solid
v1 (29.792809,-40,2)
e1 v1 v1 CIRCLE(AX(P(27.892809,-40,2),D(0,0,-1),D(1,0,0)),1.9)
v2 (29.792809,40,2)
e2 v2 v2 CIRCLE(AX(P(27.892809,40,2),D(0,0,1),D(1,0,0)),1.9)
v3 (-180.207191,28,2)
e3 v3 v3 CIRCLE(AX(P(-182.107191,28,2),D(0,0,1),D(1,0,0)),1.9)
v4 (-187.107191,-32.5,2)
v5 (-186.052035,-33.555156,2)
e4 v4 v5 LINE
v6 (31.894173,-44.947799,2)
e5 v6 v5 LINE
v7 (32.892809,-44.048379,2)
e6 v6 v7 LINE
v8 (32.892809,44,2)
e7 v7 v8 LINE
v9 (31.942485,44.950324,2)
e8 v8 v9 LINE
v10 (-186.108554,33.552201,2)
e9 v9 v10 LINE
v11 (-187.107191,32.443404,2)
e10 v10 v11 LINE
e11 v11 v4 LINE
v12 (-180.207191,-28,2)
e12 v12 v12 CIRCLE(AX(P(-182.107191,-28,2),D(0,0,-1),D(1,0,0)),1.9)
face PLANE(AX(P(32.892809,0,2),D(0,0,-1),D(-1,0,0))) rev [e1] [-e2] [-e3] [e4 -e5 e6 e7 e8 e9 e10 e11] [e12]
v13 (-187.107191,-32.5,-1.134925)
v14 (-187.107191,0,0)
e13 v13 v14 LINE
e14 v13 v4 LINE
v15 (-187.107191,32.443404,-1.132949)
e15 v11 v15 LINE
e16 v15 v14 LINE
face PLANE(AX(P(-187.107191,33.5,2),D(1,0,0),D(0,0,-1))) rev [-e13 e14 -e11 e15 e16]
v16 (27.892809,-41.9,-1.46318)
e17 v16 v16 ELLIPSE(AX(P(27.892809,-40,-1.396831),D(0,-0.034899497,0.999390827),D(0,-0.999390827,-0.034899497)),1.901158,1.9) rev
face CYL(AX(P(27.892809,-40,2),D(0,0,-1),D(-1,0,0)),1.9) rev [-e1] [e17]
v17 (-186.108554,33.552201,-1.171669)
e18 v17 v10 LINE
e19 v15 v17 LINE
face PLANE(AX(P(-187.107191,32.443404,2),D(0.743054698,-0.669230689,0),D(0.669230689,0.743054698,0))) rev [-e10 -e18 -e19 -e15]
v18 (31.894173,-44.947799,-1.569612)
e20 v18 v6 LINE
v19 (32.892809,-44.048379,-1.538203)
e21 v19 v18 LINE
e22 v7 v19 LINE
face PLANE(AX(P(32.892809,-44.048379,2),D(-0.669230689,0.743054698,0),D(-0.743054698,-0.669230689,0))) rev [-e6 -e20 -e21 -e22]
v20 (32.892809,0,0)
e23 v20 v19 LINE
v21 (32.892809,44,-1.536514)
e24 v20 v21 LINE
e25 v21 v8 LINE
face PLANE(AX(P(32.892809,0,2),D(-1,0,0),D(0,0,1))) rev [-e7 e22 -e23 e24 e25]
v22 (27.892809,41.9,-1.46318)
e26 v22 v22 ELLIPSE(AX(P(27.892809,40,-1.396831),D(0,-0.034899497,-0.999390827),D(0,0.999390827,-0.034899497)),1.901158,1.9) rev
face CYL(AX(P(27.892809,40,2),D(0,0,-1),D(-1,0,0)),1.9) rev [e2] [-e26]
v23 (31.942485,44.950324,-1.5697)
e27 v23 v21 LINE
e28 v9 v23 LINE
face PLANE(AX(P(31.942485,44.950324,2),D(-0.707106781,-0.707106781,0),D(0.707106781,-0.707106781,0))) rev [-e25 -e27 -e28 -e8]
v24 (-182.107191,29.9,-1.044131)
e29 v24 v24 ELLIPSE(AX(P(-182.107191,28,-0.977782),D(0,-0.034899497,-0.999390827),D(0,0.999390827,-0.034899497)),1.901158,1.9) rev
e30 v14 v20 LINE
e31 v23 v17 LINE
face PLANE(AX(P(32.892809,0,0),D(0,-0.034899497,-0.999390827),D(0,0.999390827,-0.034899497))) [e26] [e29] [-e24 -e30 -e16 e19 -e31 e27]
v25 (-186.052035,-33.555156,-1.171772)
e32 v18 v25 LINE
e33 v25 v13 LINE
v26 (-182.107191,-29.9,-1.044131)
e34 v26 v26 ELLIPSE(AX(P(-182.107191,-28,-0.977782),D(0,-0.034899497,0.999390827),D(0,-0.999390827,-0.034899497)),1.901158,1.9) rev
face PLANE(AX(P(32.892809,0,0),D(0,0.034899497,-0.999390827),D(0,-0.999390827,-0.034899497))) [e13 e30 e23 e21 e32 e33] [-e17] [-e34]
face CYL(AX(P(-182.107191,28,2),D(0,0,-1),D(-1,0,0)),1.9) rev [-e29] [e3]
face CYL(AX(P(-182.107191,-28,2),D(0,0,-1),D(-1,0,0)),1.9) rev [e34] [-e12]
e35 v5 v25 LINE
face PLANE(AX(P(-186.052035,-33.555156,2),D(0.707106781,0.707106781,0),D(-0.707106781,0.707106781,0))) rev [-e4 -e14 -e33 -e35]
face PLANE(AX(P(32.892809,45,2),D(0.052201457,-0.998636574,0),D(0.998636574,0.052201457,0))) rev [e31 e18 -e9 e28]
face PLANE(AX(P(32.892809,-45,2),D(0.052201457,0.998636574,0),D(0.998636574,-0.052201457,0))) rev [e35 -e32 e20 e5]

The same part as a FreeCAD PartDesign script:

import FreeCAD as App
import Part
import Sketcher

V = App.Vector


def edges_at(feature, points):
    """Names of the edges that pass closest to the given points."""
    edges = feature.Shape.Edges
    near = lambda p: min(range(len(edges)), key=lambda i: edges[i].distToShape(Part.Vertex(*p))[0])
    return sorted({f"Edge{near(p) + 1}" for p in points})


def faces_at(feature, points):
    """Names of the faces that lie closest to the given points."""
    faces = feature.Shape.Faces
    near = lambda p: min(range(len(faces)), key=lambda i: faces[i].distToShape(Part.Vertex(*p))[0])
    return sorted({f"Face{near(p) + 1}" for p in points})


def add_polygon(sketch, points):
    """Adds a closed chain of lines whose ends are joined by coincident constraints."""
    first, n = sketch.GeometryCount, len(points)
    for a, b in zip(points, points[1:] + points[:1]):
        sketch.addGeometry(Part.LineSegment(App.Vector(*a, 0), App.Vector(*b, 0)), False)
    for i in range(n):
        sketch.addConstraint(Sketcher.Constraint("Coincident", first + i, 2, first + (i + 1) % n, 1))

doc = App.newDocument("Part")
body = doc.addObject("PartDesign::Body", "Body")

# Sketch on XY plane
sketch1 = body.newObject("Sketcher::SketchObject", "Sketch")
sketch1.AttachmentSupport = (doc.getObject("XY_Plane"), [""])
sketch1.MapMode = "FlatFace"
add_polygon(sketch1, [(32.9, 0), (32.9, 45), (-187.1, 33.5), (-187.1, 0)])  # lines 0-3
sketch1.addGeometry(Part.Circle(V(-182.1, 28, 0), V(0, 0, 1), 1.9), False)  # 4
sketch1.addGeometry(Part.Circle(V(27.9, 40, 0), V(0, 0, 1), 1.9), False)  # 5
sketch1.addConstraint([
    Sketcher.Constraint("Vertical", 0),
    Sketcher.Constraint("Vertical", 2),
    Sketcher.Constraint("Horizontal", 3),
    Sketcher.Constraint("Equal", 4, 5),
    Sketcher.Constraint("PointOnObject", 2, 2, -1),
    Sketcher.Constraint("Diameter", 4, 3.8),
    Sketcher.Constraint("DistanceX", 3, 1, 3, 2, 220.0),
    Sketcher.Constraint("DistanceY", 0, 1, 0, 2, 45.0),
    Sketcher.Constraint("DistanceY", 2, 2, 2, 1, 33.5),
    Sketcher.Constraint("DistanceY", -1, 1, 4, 3, 28.0),
    Sketcher.Constraint("DistanceY", -1, 1, 5, 3, 40.0),
    Sketcher.Constraint("DistanceX", 4, 3, 5, 3, 210.0),
    Sketcher.Constraint("DistanceX", 5, 3, 0, 2, 5.0),
    Sketcher.Constraint("DistanceX", 4, 3, -1, 1, 182.107191),
])
pad1 = body.newObject("PartDesign::Pad", "Pad")
pad1.Profile = sketch1
pad1.Length = 2
doc.recompute()

draft = body.newObject("PartDesign::Draft", "Draft")
draft.Base = (pad1, faces_at(pad1, [(-77.107, 22.5, 0)]))
draft.NeutralPlane = (doc.getObject("XZ_Plane"), [""])
draft.Angle = 2
draft.Reversed = False
body2 = doc.addObject("PartDesign::Body", "Body001")
doc.recompute()

body2.BaseFeature = body
doc.recompute()

mirroring = doc.addObject("Part::Mirroring", "Mirroring")
mirroring.Source = body
mirroring.Base = V(32.892809, 0, 2)
mirroring.Normal = V(0, 1, 0)
body3 = doc.addObject("PartDesign::Body", "Body002")
body3.BaseFeature = mirroring
boolean = body2.newObject("PartDesign::Boolean", "Boolean")
boolean.Type = "Fuse"
boolean.addObjects([body3])
doc.recompute()

chamfer = body2.newObject("PartDesign::Chamfer", "Chamfer")
chamfer.Base = (boolean, edges_at(boolean, [(-187.107, 33.5, 0.415)]))
chamfer.ChamferType = "Two distances"
chamfer.Size = 1
chamfer.Size2 = 1.056596
doc.recompute()

chamfer2 = body2.newObject("PartDesign::Chamfer", "Chamfer001")
chamfer2.Base = (chamfer, edges_at(chamfer, [(-187.107, -33.5, 0.415)]))
chamfer2.ChamferType = "Two distances"
chamfer2.Size = 1
chamfer2.Size2 = 1.056596
doc.recompute()

chamfer3 = body2.newObject("PartDesign::Chamfer", "Chamfer002")
chamfer3.Base = (chamfer2, edges_at(chamfer2, [(32.893, -45, 0.214)]))
chamfer3.ChamferType = "Two distances"
chamfer3.Size = 1
chamfer3.Size2 = 0.951621
doc.recompute()

chamfer4 = body2.newObject("PartDesign::Chamfer", "Chamfer003")
chamfer4.Base = (chamfer3, edges_at(chamfer3, [(32.893, 45, 0.214)]))
chamfer4.ChamferType = "Two distances"
chamfer4.Size = 1
chamfer4.Size2 = 0.951621
mirroring.Visibility = False

doc.recompute()
